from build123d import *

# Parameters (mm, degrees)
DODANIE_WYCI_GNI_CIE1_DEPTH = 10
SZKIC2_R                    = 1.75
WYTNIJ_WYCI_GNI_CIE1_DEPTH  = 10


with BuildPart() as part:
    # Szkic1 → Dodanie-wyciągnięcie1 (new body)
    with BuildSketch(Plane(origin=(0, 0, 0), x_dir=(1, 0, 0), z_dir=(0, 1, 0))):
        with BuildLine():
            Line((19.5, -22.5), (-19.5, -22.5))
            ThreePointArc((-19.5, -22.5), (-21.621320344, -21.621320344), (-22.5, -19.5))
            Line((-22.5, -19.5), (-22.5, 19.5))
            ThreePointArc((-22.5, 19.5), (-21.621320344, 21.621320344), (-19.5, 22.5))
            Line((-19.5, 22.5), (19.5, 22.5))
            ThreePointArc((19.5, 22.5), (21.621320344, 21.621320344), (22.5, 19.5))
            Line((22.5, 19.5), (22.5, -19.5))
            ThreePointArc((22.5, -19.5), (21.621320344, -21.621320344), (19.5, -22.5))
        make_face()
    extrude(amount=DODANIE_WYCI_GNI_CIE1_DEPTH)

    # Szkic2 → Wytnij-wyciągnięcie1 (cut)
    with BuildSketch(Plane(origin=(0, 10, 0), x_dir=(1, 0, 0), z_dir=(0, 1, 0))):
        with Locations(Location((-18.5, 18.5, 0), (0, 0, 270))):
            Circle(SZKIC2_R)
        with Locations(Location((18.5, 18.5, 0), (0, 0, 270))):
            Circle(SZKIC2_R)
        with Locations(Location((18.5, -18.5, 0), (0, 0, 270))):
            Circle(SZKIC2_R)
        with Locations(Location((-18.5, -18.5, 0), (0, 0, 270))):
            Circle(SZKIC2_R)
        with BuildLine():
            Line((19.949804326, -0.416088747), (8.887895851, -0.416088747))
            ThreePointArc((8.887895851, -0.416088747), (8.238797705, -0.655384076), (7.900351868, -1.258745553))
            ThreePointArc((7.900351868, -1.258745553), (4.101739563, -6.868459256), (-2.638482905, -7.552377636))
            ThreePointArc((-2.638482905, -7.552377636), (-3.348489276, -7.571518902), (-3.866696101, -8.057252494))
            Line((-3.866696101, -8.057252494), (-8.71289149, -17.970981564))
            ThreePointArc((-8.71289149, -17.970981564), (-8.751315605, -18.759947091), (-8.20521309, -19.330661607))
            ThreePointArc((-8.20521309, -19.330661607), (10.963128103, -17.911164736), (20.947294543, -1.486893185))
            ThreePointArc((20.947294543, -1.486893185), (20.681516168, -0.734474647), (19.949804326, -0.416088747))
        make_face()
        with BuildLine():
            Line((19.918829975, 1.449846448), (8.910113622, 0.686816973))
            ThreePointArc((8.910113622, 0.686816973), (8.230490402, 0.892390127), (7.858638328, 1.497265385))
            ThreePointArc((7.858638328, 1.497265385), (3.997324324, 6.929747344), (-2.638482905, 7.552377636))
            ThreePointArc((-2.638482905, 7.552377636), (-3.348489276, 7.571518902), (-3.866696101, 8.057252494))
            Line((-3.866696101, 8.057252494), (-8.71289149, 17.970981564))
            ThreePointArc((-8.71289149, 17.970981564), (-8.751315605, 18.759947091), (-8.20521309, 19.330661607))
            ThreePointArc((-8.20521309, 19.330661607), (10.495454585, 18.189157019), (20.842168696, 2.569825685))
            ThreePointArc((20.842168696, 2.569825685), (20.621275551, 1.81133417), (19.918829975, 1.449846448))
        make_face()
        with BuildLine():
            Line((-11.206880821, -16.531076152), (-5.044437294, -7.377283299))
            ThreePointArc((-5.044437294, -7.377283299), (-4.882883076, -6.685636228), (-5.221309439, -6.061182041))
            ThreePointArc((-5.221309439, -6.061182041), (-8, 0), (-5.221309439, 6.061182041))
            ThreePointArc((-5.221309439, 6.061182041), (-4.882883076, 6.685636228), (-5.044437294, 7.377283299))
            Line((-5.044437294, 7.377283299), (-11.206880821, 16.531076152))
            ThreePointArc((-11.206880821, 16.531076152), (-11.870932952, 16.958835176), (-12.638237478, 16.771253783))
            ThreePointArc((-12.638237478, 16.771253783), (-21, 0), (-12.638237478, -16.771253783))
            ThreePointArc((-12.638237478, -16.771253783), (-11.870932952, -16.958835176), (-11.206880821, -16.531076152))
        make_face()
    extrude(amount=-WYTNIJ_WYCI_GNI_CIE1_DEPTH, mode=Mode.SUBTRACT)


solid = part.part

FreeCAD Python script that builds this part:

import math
import FreeCAD as App
import Part
import Sketcher
from FreeCAD import Vector
Q = App.Units.Quantity

doc = App.newDocument("Part")
body = doc.addObject("PartDesign::Body", "Body")

# Sketch on XZ plane
sketch1 = doc.addObject("Sketcher::SketchObject", "Sketch")
body.addObject(sketch1)
sketch1.AttachmentSupport = (doc.XZ_Plane, [""])
sketch1.MapMode = "FlatFace"
sketch1.addGeometry(Part.LineSegment(Vector(-19.5, 22.5, 0), Vector(19.5, 22.5, 0)), False)
sketch1.addGeometry(Part.ArcOfCircle(Part.Circle(Vector(19.5, 19.5, 0), Vector(0, 0, 1), 3), math.radians(0), math.radians(90)), False)
sketch1.addGeometry(Part.LineSegment(Vector(22.5, 19.5, 0), Vector(22.5, -19.5, 0)), False)
sketch1.addGeometry(Part.ArcOfCircle(Part.Circle(Vector(19.5, -19.5, 0), Vector(0, 0, 1), 3), math.radians(-90), math.radians(0)), False)
sketch1.addGeometry(Part.LineSegment(Vector(19.5, -22.5, 0), Vector(-19.5, -22.5, 0)), False)
sketch1.addGeometry(Part.ArcOfCircle(Part.Circle(Vector(-19.5, -19.5, 0), Vector(0, 0, 1), 3), math.radians(180), math.radians(270)), False)
sketch1.addGeometry(Part.LineSegment(Vector(-22.5, -19.5, 0), Vector(-22.5, 19.5, 0)), False)
sketch1.addGeometry(Part.ArcOfCircle(Part.Circle(Vector(-19.5, 19.5, 0), Vector(0, 0, 1), 3), math.radians(90), math.radians(180)), False)
sketch1.addConstraint(Sketcher.Constraint("Tangent", 0, 2, 1, 2))
sketch1.addConstraint(Sketcher.Constraint("Tangent", 1, 1, 2, 1))
sketch1.addConstraint(Sketcher.Constraint("Tangent", 2, 2, 3, 2))
sketch1.addConstraint(Sketcher.Constraint("Tangent", 3, 1, 4, 1))
sketch1.addConstraint(Sketcher.Constraint("Tangent", 4, 2, 5, 2))
sketch1.addConstraint(Sketcher.Constraint("Tangent", 5, 1, 6, 1))
sketch1.addConstraint(Sketcher.Constraint("Tangent", 6, 2, 7, 2))
sketch1.addConstraint(Sketcher.Constraint("Tangent", 7, 1, 0, 1))
sketch1.addConstraint(Sketcher.Constraint("Horizontal", 0))
sketch1.addConstraint(Sketcher.Constraint("Vertical", 2))
sketch1.addConstraint(Sketcher.Constraint("Horizontal", 4))
sketch1.addConstraint(Sketcher.Constraint("Vertical", 6))
sketch1.addConstraint(Sketcher.Constraint("Equal", 1, 3))
sketch1.addConstraint(Sketcher.Constraint("Equal", 3, 5))
sketch1.addConstraint(Sketcher.Constraint("Equal", 5, 7))
sketch1.addConstraint(Sketcher.Constraint("Symmetric", 1, 3, 5, 3, -1, 1))
sketch1.addConstraint(Sketcher.Constraint("Equal", 4, 2))
sketch1.addConstraint(Sketcher.Constraint("Radius", 1, Q("3 mm")))
sketch1.addConstraint(Sketcher.Constraint("DistanceX", 0, 1, 0, 2, Q("39 mm")))
pad1 = doc.addObject("PartDesign::Pad", "Pad")
body.addObject(pad1)
pad1.Profile = sketch1
pad1.Length = 10
pad1.Reversed = True

# Sketch on XZ plane
sketch2 = doc.addObject("Sketcher::SketchObject", "Sketch001")
body.addObject(sketch2)
sketch2.AttachmentSupport = (doc.XZ_Plane, [""])
sketch2.MapMode = "FlatFace"
sketch2.AttachmentOffset = App.Placement(Vector(0, 0, -10), App.Rotation())
sketch2.addGeometry(Part.Circle(Vector(-18.5, -18.5, 0), Vector(0, 0, 1), 1.8), False)
sketch2.addGeometry(Part.Circle(Vector(18.5, -18.5, 0), Vector(0, 0, 1), 1.8), False)
sketch2.addGeometry(Part.Circle(Vector(18.5, 18.5, 0), Vector(0, 0, 1), 1.8), False)
sketch2.addGeometry(Part.Circle(Vector(-18.5, 18.5, 0), Vector(0, 0, 1), 1.8), False)
sketch2.addGeometry(Part.LineSegment(Vector(19.9, 0.4, 0), Vector(8.9, 0.4, 0)), False)
sketch2.addGeometry(Part.ArcOfCircle(Part.Circle(Vector(8.9, 1.4, 0), Vector(0, 0, 1), 1), math.radians(-171), math.radians(-90)), False)
sketch2.addGeometry(Part.ArcOfCircle(Part.Circle(Vector(0, 0, 0), Vector(0, 0, 1), 8), math.radians(9), math.radians(109)), False)
sketch2.addGeometry(Part.ArcOfCircle(Part.Circle(Vector(-3, 8.5, 0), Vector(0, 0, 1), 1), math.radians(-154), math.radians(-71)), False)
sketch2.addGeometry(Part.LineSegment(Vector(-3.9, 8.1, 0), Vector(-8.7, 18, 0)), False)
sketch2.addGeometry(Part.ArcOfCircle(Part.Circle(Vector(-7.8, 18.4, 0), Vector(0, 0, 1), 1), math.radians(113), math.radians(206)), False)
sketch2.addGeometry(Part.ArcOfCircle(Part.Circle(Vector(0, 0, 0), Vector(0, 0, 1), 21), math.radians(4), math.radians(113)), False)
sketch2.addGeometry(Part.ArcOfCircle(Part.Circle(Vector(19.9, 1.4, 0), Vector(0, 0, 1), 1), math.radians(-90), math.radians(4)), False)
sketch2.addGeometry(Part.LineSegment(Vector(8.9, -0.7, 0), Vector(19.9, -1.4, 0)), False)
sketch2.addGeometry(Part.ArcOfCircle(Part.Circle(Vector(19.8, -2.4, 0), Vector(0, 0, 1), 1), math.radians(-7), math.radians(86)), False)
sketch2.addGeometry(Part.ArcOfCircle(Part.Circle(Vector(0, 0, 0), Vector(0, 0, 1), 21), math.radians(-113), math.radians(-7)), False)
sketch2.addGeometry(Part.ArcOfCircle(Part.Circle(Vector(-7.8, -18.4, 0), Vector(0, 0, 1), 1), math.radians(154), math.radians(247)), False)
sketch2.addGeometry(Part.LineSegment(Vector(-8.7, -18, 0), Vector(-3.9, -8.1, 0)), False)
sketch2.addGeometry(Part.ArcOfCircle(Part.Circle(Vector(-3, -8.5, 0), Vector(0, 0, 1), 1), math.radians(71), math.radians(154)), False)
sketch2.addGeometry(Part.ArcOfCircle(Part.Circle(Vector(0, 0, 0), Vector(0, 0, 1), 8), math.radians(-109), math.radians(-11)), False)
sketch2.addGeometry(Part.ArcOfCircle(Part.Circle(Vector(8.8, -1.7, 0), Vector(0, 0, 1), 1), math.radians(86), math.radians(169)), False)
sketch2.addGeometry(Part.LineSegment(Vector(-11.2, 16.5, 0), Vector(-5, 7.4, 0)), False)
sketch2.addGeometry(Part.ArcOfCircle(Part.Circle(Vector(-5.9, 6.8, 0), Vector(0, 0, 1), 1), math.radians(-49), math.radians(34)), False)
sketch2.addGeometry(Part.ArcOfCircle(Part.Circle(Vector(0, 0, 0), Vector(0, 0, 1), 8), math.radians(131), math.radians(229)), False)
sketch2.addGeometry(Part.ArcOfCircle(Part.Circle(Vector(-5.9, -6.8, 0), Vector(0, 0, 1), 1), math.radians(-34), math.radians(49)), False)
sketch2.addGeometry(Part.LineSegment(Vector(-5, -7.4, 0), Vector(-11.2, -16.5, 0)), False)
sketch2.addGeometry(Part.ArcOfCircle(Part.Circle(Vector(-12, -16, 0), Vector(0, 0, 1), 1), math.radians(-127), math.radians(-34)), False)
sketch2.addGeometry(Part.ArcOfCircle(Part.Circle(Vector(0, 0, 0), Vector(0, 0, 1), 21), math.radians(127), math.radians(233)), False)
sketch2.addGeometry(Part.ArcOfCircle(Part.Circle(Vector(-12, 16, 0), Vector(0, 0, 1), 1), math.radians(34), math.radians(127)), False)
sketch2.addConstraint(Sketcher.Constraint("Tangent", 4, 2, 5, 2))
sketch2.addConstraint(Sketcher.Constraint("Tangent", 5, 1, 6, 1))
sketch2.addConstraint(Sketcher.Constraint("Tangent", 6, 2, 7, 2))
sketch2.addConstraint(Sketcher.Constraint("Tangent", 7, 1, 8, 1))
sketch2.addConstraint(Sketcher.Constraint("Tangent", 8, 2, 9, 2))
sketch2.addConstraint(Sketcher.Constraint("Tangent", 9, 1, 10, 2))
sketch2.addConstraint(Sketcher.Constraint("Tangent", 10, 1, 11, 2))
sketch2.addConstraint(Sketcher.Constraint("Tangent", 11, 1, 4, 1))
sketch2.addConstraint(Sketcher.Constraint("Tangent", 12, 2, 13, 2))
sketch2.addConstraint(Sketcher.Constraint("Tangent", 13, 1, 14, 2))
sketch2.addConstraint(Sketcher.Constraint("Tangent", 14, 1, 15, 2))
sketch2.addConstraint(Sketcher.Constraint("Tangent", 15, 1, 16, 1))
sketch2.addConstraint(Sketcher.Constraint("Tangent", 16, 2, 17, 2))
sketch2.addConstraint(Sketcher.Constraint("Tangent", 17, 1, 18, 1))
sketch2.addConstraint(Sketcher.Constraint("Tangent", 18, 2, 19, 2))
sketch2.addConstraint(Sketcher.Constraint("Tangent", 19, 1, 12, 1))
sketch2.addConstraint(Sketcher.Constraint("Tangent", 20, 2, 21, 2))
sketch2.addConstraint(Sketcher.Constraint("Tangent", 21, 1, 22, 1))
sketch2.addConstraint(Sketcher.Constraint("Tangent", 22, 2, 23, 2))
sketch2.addConstraint(Sketcher.Constraint("Tangent", 23, 1, 24, 1))
sketch2.addConstraint(Sketcher.Constraint("Tangent", 24, 2, 25, 2))
sketch2.addConstraint(Sketcher.Constraint("Tangent", 25, 1, 26, 2))
sketch2.addConstraint(Sketcher.Constraint("Tangent", 26, 1, 27, 2))
sketch2.addConstraint(Sketcher.Constraint("Tangent", 27, 1, 20, 1))
sketch2.addConstraint(Sketcher.Constraint("Horizontal", 4))
sketch2.addConstraint(Sketcher.Constraint("Coincident", 6, 3, -1, 1))
sketch2.addConstraint(Sketcher.Constraint("Coincident", 10, 3, -1, 1))
sketch2.addConstraint(Sketcher.Constraint("Coincident", 14, 3, -1, 1))
sketch2.addConstraint(Sketcher.Constraint("Coincident", 18, 3, -1, 1))
sketch2.addConstraint(Sketcher.Constraint("Coincident", 22, 3, -1, 1))
sketch2.addConstraint(Sketcher.Constraint("Coincident", 26, 3, -1, 1))
sketch2.addConstraint(Sketcher.Constraint("Equal", 0, 1))
sketch2.addConstraint(Sketcher.Constraint("Equal", 1, 2))
sketch2.addConstraint(Sketcher.Constraint("Equal", 2, 3))
sketch2.addConstraint(Sketcher.Constraint("Equal", 5, 7))
sketch2.addConstraint(Sketcher.Constraint("Equal", 7, 9))
sketch2.addConstraint(Sketcher.Constraint("Equal", 9, 11))
sketch2.addConstraint(Sketcher.Constraint("Equal", 11, 13))
sketch2.addConstraint(Sketcher.Constraint("Equal", 10, 14))
sketch2.addConstraint(Sketcher.Constraint("Equal", 13, 15))
sketch2.addConstraint(Sketcher.Constraint("Equal", 15, 17))
sketch2.addConstraint(Sketcher.Constraint("Equal", 6, 18))
sketch2.addConstraint(Sketcher.Constraint("Equal", 17, 19))
sketch2.addConstraint(Sketcher.Constraint("Equal", 19, 21))
sketch2.addConstraint(Sketcher.Constraint("Equal", 18, 22))
sketch2.addConstraint(Sketcher.Constraint("Equal", 21, 23))
sketch2.addConstraint(Sketcher.Constraint("Equal", 23, 25))
sketch2.addConstraint(Sketcher.Constraint("Equal", 14, 26))
sketch2.addConstraint(Sketcher.Constraint("Equal", 25, 27))
sketch2.addConstraint(Sketcher.Constraint("Symmetric", 0, 3, 2, 3, -1, 1))
sketch2.addConstraint(Sketcher.Constraint("Symmetric", 1, 3, 3, 3, -1, 1))
sketch2.addConstraint(Sketcher.Constraint("Symmetric", 0, 3, 1, 3, -2))
sketch2.addConstraint(Sketcher.Constraint("Symmetric", 8, 2, 15, 1, -1))
sketch2.addConstraint(Sketcher.Constraint("Symmetric", 20, 2, 23, 1, -1))
sketch2.addConstraint(Sketcher.Constraint("Equal", 16, 20))
sketch2.addConstraint(Sketcher.Constraint("Radius", 5, Q("1 mm")))
sketch2.addConstraint(Sketcher.Constraint("Radius", 6, Q("8 mm")))
sketch2.addConstraint(Sketcher.Constraint("Radius", 10, Q("21 mm")))
sketch2.addConstraint(Sketcher.Constraint("Diameter", 0, Q("3.5 mm")))
sketch2.addConstraint(Sketcher.Constraint("DistanceX", 0, 3, 1, 3, Q("37 mm")))
sketch2.addConstraint(Sketcher.Constraint("DistanceY", 1, 3, 2, 3, Q("37 mm")))
sketch2.addConstraint(Sketcher.Constraint("DistanceX", 4, 2, 4, 1, Q("11.061908 mm")))
sketch2.addConstraint(Sketcher.Constraint("DistanceX", 8, 2, 7, 3, Q("5.744598 mm")))
sketch2.addConstraint(Sketcher.Constraint("DistanceY", 21, 1, 20, 2, Q("1.316101 mm")))
sketch2.addConstraint(Sketcher.Constraint("DistanceY", 15, 3, 25, 1, Q("1.6389 mm")))
sketch2.addConstraint(Sketcher.Constraint("DistanceX", -1, 1, 19, 3, Q("8.840968 mm")))
sketch2.addConstraint(Sketcher.Constraint("DistanceX", -1, 1, 12, 2, Q("19.91883 mm")))
pocket1 = doc.addObject("PartDesign::Pocket", "Pocket")
body.addObject(pocket1)
pocket1.Profile = sketch2
pocket1.Length = 10
pocket1.Reversed = True

doc.recompute()
